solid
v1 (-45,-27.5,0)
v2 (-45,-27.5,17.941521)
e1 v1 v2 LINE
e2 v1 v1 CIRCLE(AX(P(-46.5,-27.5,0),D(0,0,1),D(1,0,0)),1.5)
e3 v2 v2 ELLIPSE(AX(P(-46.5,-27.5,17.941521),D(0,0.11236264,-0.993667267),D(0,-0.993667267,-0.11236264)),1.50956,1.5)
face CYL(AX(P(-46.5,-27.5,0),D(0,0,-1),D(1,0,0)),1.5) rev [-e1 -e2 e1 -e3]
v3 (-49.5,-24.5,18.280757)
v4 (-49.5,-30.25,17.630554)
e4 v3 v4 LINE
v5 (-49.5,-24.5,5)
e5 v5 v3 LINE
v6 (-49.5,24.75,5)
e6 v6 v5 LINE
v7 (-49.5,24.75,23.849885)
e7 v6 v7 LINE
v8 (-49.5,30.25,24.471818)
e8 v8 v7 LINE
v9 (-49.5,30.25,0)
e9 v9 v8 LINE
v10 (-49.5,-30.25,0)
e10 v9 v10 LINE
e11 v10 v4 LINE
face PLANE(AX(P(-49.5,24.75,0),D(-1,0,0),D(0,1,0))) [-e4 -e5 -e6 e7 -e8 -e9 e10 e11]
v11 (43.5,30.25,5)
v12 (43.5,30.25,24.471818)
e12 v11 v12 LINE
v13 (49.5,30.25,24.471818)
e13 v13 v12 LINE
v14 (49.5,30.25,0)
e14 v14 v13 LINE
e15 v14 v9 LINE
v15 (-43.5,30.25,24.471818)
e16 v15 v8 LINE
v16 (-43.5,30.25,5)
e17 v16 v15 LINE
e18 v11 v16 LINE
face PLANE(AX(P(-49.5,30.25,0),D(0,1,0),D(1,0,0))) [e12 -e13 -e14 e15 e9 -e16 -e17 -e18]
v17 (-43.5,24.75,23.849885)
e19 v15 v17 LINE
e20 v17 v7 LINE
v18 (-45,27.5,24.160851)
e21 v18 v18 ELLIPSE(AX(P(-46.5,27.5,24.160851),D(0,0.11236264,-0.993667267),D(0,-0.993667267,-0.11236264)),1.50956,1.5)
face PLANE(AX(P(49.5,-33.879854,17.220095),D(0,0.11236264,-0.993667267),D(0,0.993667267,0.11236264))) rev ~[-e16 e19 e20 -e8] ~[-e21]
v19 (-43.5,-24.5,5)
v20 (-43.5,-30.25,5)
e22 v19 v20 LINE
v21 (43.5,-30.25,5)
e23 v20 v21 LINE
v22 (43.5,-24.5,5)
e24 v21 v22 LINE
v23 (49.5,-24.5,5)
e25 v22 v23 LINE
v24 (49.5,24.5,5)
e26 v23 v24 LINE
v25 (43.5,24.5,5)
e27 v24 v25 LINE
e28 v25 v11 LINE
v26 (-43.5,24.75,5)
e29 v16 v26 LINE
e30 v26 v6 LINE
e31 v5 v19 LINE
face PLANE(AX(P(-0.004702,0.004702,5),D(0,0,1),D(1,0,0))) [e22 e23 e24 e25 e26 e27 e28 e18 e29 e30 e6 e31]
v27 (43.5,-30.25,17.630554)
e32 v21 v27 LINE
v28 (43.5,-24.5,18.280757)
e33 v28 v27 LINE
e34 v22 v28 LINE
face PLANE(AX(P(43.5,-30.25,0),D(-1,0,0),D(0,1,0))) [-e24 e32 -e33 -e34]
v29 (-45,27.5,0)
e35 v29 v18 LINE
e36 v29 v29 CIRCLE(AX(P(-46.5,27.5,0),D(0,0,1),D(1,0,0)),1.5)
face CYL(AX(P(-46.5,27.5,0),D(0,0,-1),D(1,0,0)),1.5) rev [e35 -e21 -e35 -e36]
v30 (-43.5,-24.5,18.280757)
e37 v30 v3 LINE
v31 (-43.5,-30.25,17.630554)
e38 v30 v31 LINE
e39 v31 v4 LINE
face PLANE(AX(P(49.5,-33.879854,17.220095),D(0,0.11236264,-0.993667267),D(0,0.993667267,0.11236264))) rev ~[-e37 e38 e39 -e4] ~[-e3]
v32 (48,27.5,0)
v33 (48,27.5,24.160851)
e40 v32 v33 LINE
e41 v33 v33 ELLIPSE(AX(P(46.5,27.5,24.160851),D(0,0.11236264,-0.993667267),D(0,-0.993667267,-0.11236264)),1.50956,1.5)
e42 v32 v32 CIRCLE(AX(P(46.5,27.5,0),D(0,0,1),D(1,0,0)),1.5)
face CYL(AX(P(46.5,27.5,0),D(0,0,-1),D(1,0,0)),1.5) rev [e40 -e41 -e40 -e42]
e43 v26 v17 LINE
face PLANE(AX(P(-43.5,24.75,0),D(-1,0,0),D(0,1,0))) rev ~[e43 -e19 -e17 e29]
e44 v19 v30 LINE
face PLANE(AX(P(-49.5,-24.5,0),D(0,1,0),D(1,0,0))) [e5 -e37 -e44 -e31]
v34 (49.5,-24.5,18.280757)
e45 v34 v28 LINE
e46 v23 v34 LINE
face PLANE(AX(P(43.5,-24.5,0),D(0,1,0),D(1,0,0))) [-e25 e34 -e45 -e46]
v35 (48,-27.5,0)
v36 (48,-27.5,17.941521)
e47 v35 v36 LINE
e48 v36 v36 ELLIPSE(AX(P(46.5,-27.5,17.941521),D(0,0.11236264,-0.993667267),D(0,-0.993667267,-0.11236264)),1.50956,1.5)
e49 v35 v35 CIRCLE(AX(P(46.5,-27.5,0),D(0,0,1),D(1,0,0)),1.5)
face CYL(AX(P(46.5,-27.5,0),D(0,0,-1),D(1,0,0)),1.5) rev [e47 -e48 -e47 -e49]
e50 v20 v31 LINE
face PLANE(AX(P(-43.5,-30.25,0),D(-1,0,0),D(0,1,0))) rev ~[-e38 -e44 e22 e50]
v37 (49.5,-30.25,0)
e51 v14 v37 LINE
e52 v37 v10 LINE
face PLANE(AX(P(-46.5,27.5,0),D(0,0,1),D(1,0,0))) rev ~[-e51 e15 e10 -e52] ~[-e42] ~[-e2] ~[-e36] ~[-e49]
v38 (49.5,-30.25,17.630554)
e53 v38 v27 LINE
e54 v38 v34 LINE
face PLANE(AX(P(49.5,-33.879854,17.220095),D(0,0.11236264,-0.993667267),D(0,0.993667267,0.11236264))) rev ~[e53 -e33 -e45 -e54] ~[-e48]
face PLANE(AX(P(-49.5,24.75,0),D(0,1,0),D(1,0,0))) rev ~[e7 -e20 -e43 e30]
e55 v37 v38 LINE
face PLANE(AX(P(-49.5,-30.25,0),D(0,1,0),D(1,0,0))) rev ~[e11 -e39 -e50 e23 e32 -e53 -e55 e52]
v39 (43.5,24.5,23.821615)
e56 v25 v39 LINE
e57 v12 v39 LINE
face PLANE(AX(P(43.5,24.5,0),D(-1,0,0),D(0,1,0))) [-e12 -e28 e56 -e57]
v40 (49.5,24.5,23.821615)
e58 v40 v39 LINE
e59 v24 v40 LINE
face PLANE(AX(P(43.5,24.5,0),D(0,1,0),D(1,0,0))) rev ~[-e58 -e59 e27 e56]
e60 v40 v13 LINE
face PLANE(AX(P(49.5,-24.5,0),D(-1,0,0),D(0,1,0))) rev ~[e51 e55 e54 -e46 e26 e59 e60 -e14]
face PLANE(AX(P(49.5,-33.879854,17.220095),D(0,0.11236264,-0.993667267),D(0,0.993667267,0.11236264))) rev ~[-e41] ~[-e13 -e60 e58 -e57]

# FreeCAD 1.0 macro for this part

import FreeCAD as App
import Part
import Sketcher

V = App.Vector
Q = App.Units.Quantity

doc = App.newDocument("Part")
body = doc.addObject("PartDesign::Body", "Body")

# Sketch on XY plane
sketch1 = doc.addObject("Sketcher::SketchObject", "Sketch")
body.addObject(sketch1)
sketch1.AttachmentSupport = (doc.XY_Plane, [""])
sketch1.MapMode = "FlatFace"
sketch1.addGeometry([
    Part.LineSegment(V(44, 30, 0), V(-44, 30, 0)),  # 0
    Part.LineSegment(V(-44, 30, 0), V(-44, 25, 0)),  # 1
    Part.LineSegment(V(-44, 25, 0), V(-50, 25, 0)),  # 2
    Part.LineSegment(V(-50, 25, 0), V(-50, -24, 0)),  # 3
    Part.LineSegment(V(-50, -24, 0), V(-44, -24, 0)),  # 4
    Part.LineSegment(V(-44, -24, 0), V(-44, -30, 0)),  # 5
    Part.LineSegment(V(-44, -30, 0), V(44, -30, 0)),  # 6
    Part.LineSegment(V(44, -30, 0), V(44, -24, 0)),  # 7
    Part.LineSegment(V(44, -24, 0), V(50, -24, 0)),  # 8
    Part.LineSegment(V(50, -24, 0), V(50, 24, 0)),  # 9
    Part.LineSegment(V(50, 24, 0), V(44, 24, 0)),  # 10
    Part.LineSegment(V(44, 24, 0), V(44, 30, 0)),  # 11
], False)
sketch1.addConstraint([
    Sketcher.Constraint("Coincident", 0, 2, 1, 1),
    Sketcher.Constraint("Coincident", 1, 2, 2, 1),
    Sketcher.Constraint("Coincident", 2, 2, 3, 1),
    Sketcher.Constraint("Coincident", 3, 2, 4, 1),
    Sketcher.Constraint("Coincident", 4, 2, 5, 1),
    Sketcher.Constraint("Coincident", 5, 2, 6, 1),
    Sketcher.Constraint("Coincident", 6, 2, 7, 1),
    Sketcher.Constraint("Coincident", 7, 2, 8, 1),
    Sketcher.Constraint("Coincident", 8, 2, 9, 1),
    Sketcher.Constraint("Coincident", 9, 2, 10, 1),
    Sketcher.Constraint("Coincident", 10, 2, 11, 1),
    Sketcher.Constraint("Coincident", 11, 2, 0, 1),
    Sketcher.Constraint("Horizontal", 0),
    Sketcher.Constraint("Vertical", 1),
    Sketcher.Constraint("Horizontal", 2),
    Sketcher.Constraint("Vertical", 3),
    Sketcher.Constraint("Horizontal", 4),
    Sketcher.Constraint("Vertical", 5),
    Sketcher.Constraint("Horizontal", 6),
    Sketcher.Constraint("Vertical", 7),
    Sketcher.Constraint("Horizontal", 8),
    Sketcher.Constraint("Vertical", 9),
    Sketcher.Constraint("Horizontal", 10),
    Sketcher.Constraint("Vertical", 11),
    Sketcher.Constraint("Symmetric", 0, 2, 6, 2, -1, 1),
    Sketcher.Constraint("Symmetric", 3, 2, 9, 2, -1, 1),
    Sketcher.Constraint("Symmetric", 4, 2, 7, 2, -2),
    Sketcher.Constraint("Vertical", 7, 2, 10, 2),
    Sketcher.Constraint("DistanceX", 0, 2, 0, 1, Q("87 mm")),
    Sketcher.Constraint("DistanceX", 2, 2, 2, 1, Q("6 mm")),
    Sketcher.Constraint("DistanceY", 9, 1, 9, 2, Q("49 mm")),
    Sketcher.Constraint("DistanceY", 1, 2, 1, 1, Q("5.5 mm")),
    Sketcher.Constraint("DistanceY", 5, 2, 1, 2, Q("55 mm")),
])
pad1 = doc.addObject("PartDesign::Pad", "Pad")
body.addObject(pad1)
pad1.Profile = sketch1
pad1.Length = 5

# Sketch on XY plane
sketch2 = doc.addObject("Sketcher::SketchObject", "Sketch001")
body.addObject(sketch2)
sketch2.AttachmentSupport = (doc.XY_Plane, [""])
sketch2.MapMode = "FlatFace"
sketch2.addGeometry([
    Part.LineSegment(V(-49.5, 30.2, 0), V(-49.5, 24.8, 0)),  # 0
    Part.LineSegment(V(-49.5, 24.8, 0), V(-43.5, 24.8, 0)),  # 1
    Part.LineSegment(V(-43.5, 24.8, 0), V(-43.5, 30.2, 0)),  # 2
    Part.LineSegment(V(-43.5, 30.2, 0), V(-49.5, 30.2, 0)),  # 3
    Part.Circle(V(-46.5, 27.5, 0), V(0, 0, 1), 1.5),  # 4
    Part.LineSegment(V(-49.5, -24.5, 0), V(-49.5, -30.2, 0)),  # 5
    Part.LineSegment(V(-49.5, -30.2, 0), V(-43.5, -30.2, 0)),  # 6
    Part.LineSegment(V(-43.5, -30.2, 0), V(-43.5, -24.5, 0)),  # 7
    Part.LineSegment(V(-43.5, -24.5, 0), V(-49.5, -24.5, 0)),  # 8
    Part.Circle(V(-46.5, -27.5, 0), V(0, 0, 1), 1.5),  # 9
    Part.LineSegment(V(43.5, -24.5, 0), V(43.5, -30.2, 0)),  # 10
    Part.LineSegment(V(43.5, -30.2, 0), V(49.5, -30.2, 0)),  # 11
    Part.LineSegment(V(49.5, -30.2, 0), V(49.5, -24.5, 0)),  # 12
    Part.LineSegment(V(49.5, -24.5, 0), V(43.5, -24.5, 0)),  # 13
    Part.Circle(V(46.5, -27.5, 0), V(0, 0, 1), 1.5),  # 14
    Part.LineSegment(V(43.5, 30.2, 0), V(43.5, 24.5, 0)),  # 15
    Part.LineSegment(V(43.5, 24.5, 0), V(49.5, 24.5, 0)),  # 16
    Part.LineSegment(V(49.5, 24.5, 0), V(49.5, 30.2, 0)),  # 17
    Part.LineSegment(V(49.5, 30.2, 0), V(43.5, 30.2, 0)),  # 18
    Part.Circle(V(46.5, 27.5, 0), V(0, 0, 1), 1.5),  # 19
], False)
sketch2.addConstraint([
    Sketcher.Constraint("Coincident", 0, 2, 1, 1),
    Sketcher.Constraint("Coincident", 1, 2, 2, 1),
    Sketcher.Constraint("Coincident", 2, 2, 3, 1),
    Sketcher.Constraint("Coincident", 3, 2, 0, 1),
    Sketcher.Constraint("Coincident", 5, 2, 6, 1),
    Sketcher.Constraint("Coincident", 6, 2, 7, 1),
    Sketcher.Constraint("Coincident", 7, 2, 8, 1),
    Sketcher.Constraint("Coincident", 8, 2, 5, 1),
    Sketcher.Constraint("Coincident", 10, 2, 11, 1),
    Sketcher.Constraint("Coincident", 11, 2, 12, 1),
    Sketcher.Constraint("Coincident", 12, 2, 13, 1),
    Sketcher.Constraint("Coincident", 13, 2, 10, 1),
    Sketcher.Constraint("Coincident", 15, 2, 16, 1),
    Sketcher.Constraint("Coincident", 16, 2, 17, 1),
    Sketcher.Constraint("Coincident", 17, 2, 18, 1),
    Sketcher.Constraint("Coincident", 18, 2, 15, 1),
    Sketcher.Constraint("Vertical", 0),
    Sketcher.Constraint("Horizontal", 1),
    Sketcher.Constraint("Vertical", 2),
    Sketcher.Constraint("Horizontal", 3),
    Sketcher.Constraint("Vertical", 5),
    Sketcher.Constraint("Horizontal", 6),
    Sketcher.Constraint("Vertical", 7),
    Sketcher.Constraint("Horizontal", 8),
    Sketcher.Constraint("Vertical", 10),
    Sketcher.Constraint("Horizontal", 11),
    Sketcher.Constraint("Vertical", 12),
    Sketcher.Constraint("Horizontal", 13),
    Sketcher.Constraint("Vertical", 15),
    Sketcher.Constraint("Horizontal", 16),
    Sketcher.Constraint("Vertical", 17),
    Sketcher.Constraint("Horizontal", 18),
    Sketcher.Constraint("Equal", 4, 9),
    Sketcher.Constraint("Equal", 9, 14),
    Sketcher.Constraint("Equal", 14, 19),
    Sketcher.Constraint("Symmetric", 4, 3, 14, 3, -1, 1),
    Sketcher.Constraint("Symmetric", 9, 3, 19, 3, -1, 1),
    Sketcher.Constraint("Symmetric", 2, 2, 10, 2, -1, 1),
    Sketcher.Constraint("Symmetric", 7, 2, 15, 2, -1, 1),
    Sketcher.Constraint("Symmetric", 5, 2, 17, 2, -1, 1),
    Sketcher.Constraint("Symmetric", 9, 3, 14, 3, -2),
    Sketcher.Constraint("Symmetric", 6, 2, 10, 2, -2),
    Sketcher.Constraint("Symmetric", 8, 2, 12, 2, -2),
    Sketcher.Constraint("Vertical", 3, 2, 5, 2),
    Sketcher.Constraint("Diameter", 4, Q("3 mm")),
    Sketcher.Constraint("DistanceX", 1, 1, 1, 2, Q("6 mm")),
    Sketcher.Constraint("DistanceY", 0, 2, 0, 1, Q("5.5 mm")),
    Sketcher.Constraint("DistanceY", 9, 3, 4, 3, Q("55 mm")),
    Sketcher.Constraint("DistanceX", 9, 3, 14, 3, Q("93 mm")),
    Sketcher.Constraint("DistanceX", 0, 2, 4, 3, Q("3 mm")),
    Sketcher.Constraint("DistanceY", 5, 2, 0, 2, Q("55 mm")),
    Sketcher.Constraint("DistanceY", 9, 3, 7, 2, Q("3 mm")),
])
pad2 = doc.addObject("PartDesign::Pad", "Pad001")
body.addObject(pad2)
pad2.Profile = sketch2
pad2.Length = 25

# Sketch on YZ plane
sketch3 = doc.addObject("Sketcher::SketchObject", "Sketch002")
body.addObject(sketch3)
sketch3.AttachmentSupport = (doc.YZ_Plane, [""])
sketch3.MapMode = "FlatFace"
sketch3.AttachmentOffset = App.Placement(V(0, 0, 49.5), App.Rotation())
sketch3.addGeometry([
    Part.LineSegment(V(35, 25, 0), V(35, 32, 0)),
    Part.LineSegment(V(35, 32, 0), V(-34, 32, 0)),
    Part.LineSegment(V(-34, 32, 0), V(-34, 17, 0)),
    Part.LineSegment(V(-34, 17, 0), V(35, 25, 0)),
], False)
sketch3.addConstraint([
    Sketcher.Constraint("Coincident", 0, 2, 1, 1),
    Sketcher.Constraint("Coincident", 1, 2, 2, 1),
    Sketcher.Constraint("Coincident", 2, 2, 3, 1),
    Sketcher.Constraint("Coincident", 3, 2, 0, 1),
    Sketcher.Constraint("Horizontal", 1),
    Sketcher.Constraint("Vertical", 2),
    Sketcher.Constraint("DistanceY", -1, 1, 3, 2, Q("25 mm")),
    Sketcher.Constraint("DistanceX", 1, 2, 1, 1, Q("68.417639 mm")),
    Sketcher.Constraint("Distance", 3, Q("69.239251 mm")),
    Sketcher.Constraint("DistanceY", 2, 2, 2, 1, Q("14.395073 mm")),
    Sketcher.Constraint("DistanceY", -1, 1, 0, 2, Q("31.615168 mm")),
    Sketcher.Constraint("DistanceX", -1, 1, 0, 2, Q("34.537785 mm")),
])
pocket1 = doc.addObject("PartDesign::Pocket", "Pocket")
body.addObject(pocket1)
pocket1.Profile = sketch3
pocket1.Length = 105

doc.recompute()
